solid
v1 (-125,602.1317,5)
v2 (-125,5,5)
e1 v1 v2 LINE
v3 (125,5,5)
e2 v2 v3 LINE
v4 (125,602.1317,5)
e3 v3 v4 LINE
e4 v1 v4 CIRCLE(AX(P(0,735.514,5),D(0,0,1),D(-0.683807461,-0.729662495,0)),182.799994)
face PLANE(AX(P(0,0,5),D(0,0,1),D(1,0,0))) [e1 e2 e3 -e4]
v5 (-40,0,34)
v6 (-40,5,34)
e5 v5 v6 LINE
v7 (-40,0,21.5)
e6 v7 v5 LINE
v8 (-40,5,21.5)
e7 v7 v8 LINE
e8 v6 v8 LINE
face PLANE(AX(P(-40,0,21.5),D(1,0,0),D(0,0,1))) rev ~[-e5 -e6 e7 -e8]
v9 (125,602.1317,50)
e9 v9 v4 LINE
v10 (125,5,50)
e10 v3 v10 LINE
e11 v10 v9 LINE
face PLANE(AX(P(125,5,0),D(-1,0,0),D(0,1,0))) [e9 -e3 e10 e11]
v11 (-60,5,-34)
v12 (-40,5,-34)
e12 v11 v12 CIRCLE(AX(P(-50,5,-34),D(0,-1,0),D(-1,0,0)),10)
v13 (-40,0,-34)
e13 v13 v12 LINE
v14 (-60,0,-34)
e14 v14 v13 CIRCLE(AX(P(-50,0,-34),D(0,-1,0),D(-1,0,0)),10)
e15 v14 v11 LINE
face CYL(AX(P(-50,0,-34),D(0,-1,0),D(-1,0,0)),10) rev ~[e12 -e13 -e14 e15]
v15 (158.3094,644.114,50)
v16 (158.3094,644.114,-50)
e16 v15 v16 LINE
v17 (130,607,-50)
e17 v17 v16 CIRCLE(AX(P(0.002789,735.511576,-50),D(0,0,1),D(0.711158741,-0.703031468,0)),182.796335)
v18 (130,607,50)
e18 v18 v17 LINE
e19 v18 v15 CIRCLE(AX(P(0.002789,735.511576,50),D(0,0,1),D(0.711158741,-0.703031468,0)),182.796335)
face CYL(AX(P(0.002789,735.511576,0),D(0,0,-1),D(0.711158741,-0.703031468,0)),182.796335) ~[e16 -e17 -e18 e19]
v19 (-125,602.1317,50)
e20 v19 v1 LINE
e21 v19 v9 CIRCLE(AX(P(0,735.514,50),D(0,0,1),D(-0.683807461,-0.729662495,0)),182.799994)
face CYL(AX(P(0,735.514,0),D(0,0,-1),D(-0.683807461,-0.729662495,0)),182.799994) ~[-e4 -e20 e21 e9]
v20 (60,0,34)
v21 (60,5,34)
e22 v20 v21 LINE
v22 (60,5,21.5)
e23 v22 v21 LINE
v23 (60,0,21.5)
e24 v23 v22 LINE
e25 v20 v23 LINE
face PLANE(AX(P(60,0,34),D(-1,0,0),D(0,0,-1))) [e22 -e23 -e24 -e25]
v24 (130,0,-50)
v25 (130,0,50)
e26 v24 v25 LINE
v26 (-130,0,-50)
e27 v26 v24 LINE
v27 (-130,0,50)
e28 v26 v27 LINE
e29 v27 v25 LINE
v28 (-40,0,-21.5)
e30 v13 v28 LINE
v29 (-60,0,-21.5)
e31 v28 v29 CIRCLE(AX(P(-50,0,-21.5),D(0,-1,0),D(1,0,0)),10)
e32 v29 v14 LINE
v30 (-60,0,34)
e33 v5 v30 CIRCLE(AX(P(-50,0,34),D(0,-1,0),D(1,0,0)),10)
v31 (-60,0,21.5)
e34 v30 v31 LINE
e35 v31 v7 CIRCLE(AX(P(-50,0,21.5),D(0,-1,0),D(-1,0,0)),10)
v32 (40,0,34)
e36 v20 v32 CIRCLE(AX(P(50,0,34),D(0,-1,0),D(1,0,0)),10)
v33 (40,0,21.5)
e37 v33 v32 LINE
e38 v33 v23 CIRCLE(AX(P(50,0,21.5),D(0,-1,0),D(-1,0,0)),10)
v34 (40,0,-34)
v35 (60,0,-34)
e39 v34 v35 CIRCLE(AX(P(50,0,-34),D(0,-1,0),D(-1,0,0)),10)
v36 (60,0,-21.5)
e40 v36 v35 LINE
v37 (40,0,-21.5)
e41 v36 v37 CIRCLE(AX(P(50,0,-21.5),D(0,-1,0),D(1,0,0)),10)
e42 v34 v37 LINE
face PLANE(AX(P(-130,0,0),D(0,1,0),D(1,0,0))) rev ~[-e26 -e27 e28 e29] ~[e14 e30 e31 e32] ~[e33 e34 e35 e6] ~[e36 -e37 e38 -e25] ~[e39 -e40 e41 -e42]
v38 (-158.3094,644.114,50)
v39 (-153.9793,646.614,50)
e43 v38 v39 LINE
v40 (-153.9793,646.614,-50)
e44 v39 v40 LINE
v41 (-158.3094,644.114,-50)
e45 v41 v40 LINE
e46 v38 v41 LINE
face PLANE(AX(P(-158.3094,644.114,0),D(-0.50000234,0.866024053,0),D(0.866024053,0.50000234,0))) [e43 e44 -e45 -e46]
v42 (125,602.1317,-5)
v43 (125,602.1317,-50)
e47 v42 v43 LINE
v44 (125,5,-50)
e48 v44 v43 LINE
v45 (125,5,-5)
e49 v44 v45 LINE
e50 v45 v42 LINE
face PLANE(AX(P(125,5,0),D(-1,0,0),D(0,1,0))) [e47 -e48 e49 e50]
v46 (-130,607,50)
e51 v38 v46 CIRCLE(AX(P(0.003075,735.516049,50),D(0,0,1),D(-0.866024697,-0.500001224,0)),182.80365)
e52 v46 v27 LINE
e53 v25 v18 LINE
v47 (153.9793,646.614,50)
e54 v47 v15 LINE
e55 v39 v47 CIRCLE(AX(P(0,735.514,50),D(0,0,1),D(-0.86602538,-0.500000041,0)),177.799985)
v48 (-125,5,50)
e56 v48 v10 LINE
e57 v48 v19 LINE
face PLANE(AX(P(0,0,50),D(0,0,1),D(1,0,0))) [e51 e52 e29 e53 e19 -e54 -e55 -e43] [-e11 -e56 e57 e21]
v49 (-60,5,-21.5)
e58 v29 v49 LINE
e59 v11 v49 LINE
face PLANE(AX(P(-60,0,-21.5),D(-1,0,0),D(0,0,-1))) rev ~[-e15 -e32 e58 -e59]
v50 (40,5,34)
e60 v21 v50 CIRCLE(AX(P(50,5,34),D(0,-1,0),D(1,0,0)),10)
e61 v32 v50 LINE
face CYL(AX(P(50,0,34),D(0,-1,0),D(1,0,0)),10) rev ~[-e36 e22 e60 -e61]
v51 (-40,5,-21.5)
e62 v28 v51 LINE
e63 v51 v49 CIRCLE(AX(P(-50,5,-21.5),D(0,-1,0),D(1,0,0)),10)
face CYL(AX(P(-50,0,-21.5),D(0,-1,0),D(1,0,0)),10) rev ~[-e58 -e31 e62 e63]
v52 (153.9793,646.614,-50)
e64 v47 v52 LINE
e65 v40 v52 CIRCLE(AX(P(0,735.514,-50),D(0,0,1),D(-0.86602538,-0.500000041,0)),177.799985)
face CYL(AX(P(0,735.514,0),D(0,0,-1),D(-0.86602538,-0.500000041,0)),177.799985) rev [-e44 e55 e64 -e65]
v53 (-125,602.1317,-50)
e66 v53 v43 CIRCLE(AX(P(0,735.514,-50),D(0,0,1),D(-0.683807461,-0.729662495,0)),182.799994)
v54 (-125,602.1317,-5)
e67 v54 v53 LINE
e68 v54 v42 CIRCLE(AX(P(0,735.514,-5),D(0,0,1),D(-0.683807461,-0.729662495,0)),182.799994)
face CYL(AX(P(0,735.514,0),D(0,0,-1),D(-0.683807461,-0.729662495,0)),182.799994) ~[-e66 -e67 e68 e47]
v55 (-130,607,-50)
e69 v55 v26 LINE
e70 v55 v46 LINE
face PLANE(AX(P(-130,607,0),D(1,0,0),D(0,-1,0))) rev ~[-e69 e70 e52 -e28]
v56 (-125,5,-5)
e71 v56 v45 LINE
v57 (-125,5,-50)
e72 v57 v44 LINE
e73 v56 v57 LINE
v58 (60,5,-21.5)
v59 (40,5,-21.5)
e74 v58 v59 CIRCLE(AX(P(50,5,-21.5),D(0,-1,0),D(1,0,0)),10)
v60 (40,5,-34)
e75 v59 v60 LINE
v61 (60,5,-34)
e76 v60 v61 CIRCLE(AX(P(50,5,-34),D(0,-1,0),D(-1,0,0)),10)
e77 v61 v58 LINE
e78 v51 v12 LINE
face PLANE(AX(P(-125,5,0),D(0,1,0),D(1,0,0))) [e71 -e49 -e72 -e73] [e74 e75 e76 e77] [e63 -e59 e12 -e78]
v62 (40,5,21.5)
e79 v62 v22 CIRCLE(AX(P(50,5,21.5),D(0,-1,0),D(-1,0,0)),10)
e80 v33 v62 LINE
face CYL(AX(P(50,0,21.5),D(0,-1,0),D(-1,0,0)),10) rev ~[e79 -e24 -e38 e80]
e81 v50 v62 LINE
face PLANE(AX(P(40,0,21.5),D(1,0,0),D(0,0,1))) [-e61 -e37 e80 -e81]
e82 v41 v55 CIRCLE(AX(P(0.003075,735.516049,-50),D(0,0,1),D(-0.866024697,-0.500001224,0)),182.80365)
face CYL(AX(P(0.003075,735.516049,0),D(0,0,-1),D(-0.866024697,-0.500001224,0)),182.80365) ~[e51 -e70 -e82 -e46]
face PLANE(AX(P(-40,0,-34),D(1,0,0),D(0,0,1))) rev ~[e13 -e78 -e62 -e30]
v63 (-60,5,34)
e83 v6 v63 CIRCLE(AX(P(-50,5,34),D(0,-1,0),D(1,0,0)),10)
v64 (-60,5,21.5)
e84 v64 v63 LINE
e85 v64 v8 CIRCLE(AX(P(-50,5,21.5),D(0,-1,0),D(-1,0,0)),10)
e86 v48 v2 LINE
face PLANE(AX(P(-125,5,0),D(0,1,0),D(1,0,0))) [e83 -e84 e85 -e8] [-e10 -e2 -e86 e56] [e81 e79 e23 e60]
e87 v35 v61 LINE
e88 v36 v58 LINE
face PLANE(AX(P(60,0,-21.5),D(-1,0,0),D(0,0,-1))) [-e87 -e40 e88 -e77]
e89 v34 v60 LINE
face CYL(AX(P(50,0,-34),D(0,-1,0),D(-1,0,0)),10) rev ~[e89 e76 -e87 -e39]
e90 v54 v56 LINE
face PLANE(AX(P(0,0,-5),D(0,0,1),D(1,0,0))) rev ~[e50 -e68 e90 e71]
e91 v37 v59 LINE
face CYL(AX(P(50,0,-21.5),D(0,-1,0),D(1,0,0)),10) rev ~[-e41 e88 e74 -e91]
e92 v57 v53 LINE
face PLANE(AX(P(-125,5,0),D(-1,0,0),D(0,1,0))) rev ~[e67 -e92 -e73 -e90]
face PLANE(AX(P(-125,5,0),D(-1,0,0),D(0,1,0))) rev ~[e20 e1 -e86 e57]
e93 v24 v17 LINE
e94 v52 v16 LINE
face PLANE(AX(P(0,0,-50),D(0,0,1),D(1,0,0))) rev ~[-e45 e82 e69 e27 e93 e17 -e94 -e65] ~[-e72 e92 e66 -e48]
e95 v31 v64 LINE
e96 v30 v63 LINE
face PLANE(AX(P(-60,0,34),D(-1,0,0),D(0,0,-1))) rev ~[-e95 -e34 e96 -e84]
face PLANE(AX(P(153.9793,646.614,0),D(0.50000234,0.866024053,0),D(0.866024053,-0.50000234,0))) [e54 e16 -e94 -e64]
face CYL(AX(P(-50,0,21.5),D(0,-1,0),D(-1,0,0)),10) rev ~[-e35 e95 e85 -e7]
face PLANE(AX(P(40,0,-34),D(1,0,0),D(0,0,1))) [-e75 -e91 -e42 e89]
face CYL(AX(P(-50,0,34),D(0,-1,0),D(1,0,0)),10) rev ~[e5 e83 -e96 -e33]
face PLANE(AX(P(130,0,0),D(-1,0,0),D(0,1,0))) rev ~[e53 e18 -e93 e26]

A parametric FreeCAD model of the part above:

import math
import FreeCAD as App
import Part
import Sketcher

V = App.Vector
Q = App.Units.Quantity

doc = App.newDocument("Part")
body = doc.addObject("PartDesign::Body", "Body")

sketch1 = body.newObject("Sketcher::SketchObject", "Sketch")
sketch1.AttachmentSupport = (doc.getObject("XY_Plane"), [""])
sketch1.MapMode = "FlatFace"
sketch1.addGeometry(Part.ArcOfCircle(Part.Circle(V(0, 735.5, 0), V(0, 0, 1), 182.8), math.radians(-150), math.radians(-135.33)), False)
sketch1.addGeometry(Part.LineSegment(V(-130, 607, 0), V(-130, 0, 0)), False)
sketch1.addGeometry(Part.LineSegment(V(-130, 0, 0), V(130, 0, 0)), False)
sketch1.addGeometry(Part.LineSegment(V(130, 0, 0), V(130, 607, 0)), False)
sketch1.addGeometry(Part.ArcOfCircle(Part.Circle(V(0, 735.5, 0), V(0, 0, 1), 182.8), math.radians(-44.67), math.radians(-30)), False)
sketch1.addGeometry(Part.LineSegment(V(158.3, 644.1, 0), V(154, 646.6, 0)), False)
sketch1.addGeometry(Part.ArcOfCircle(Part.Circle(V(0, 735.5, 0), V(0, 0, 1), 177.8), math.radians(-150), math.radians(-30)), False)
sketch1.addGeometry(Part.LineSegment(V(-154, 646.6, 0), V(-158.3, 644.1, 0)), False)
sketch1.addGeometry(Part.LineSegment(V(125, 602.1, 0), V(125, 5, 0)), False)
sketch1.addGeometry(Part.LineSegment(V(125, 5, 0), V(-125, 5, 0)), False)
sketch1.addGeometry(Part.LineSegment(V(-125, 5, 0), V(-125, 602.1, 0)), False)
sketch1.addGeometry(Part.ArcOfCircle(Part.Circle(V(0, 735.5, 0), V(0, 0, 1), 182.8), math.radians(-133), math.radians(-47)), False)
sketch1.addConstraint(Sketcher.Constraint("Coincident", 0, 2, 1, 1))
sketch1.addConstraint(Sketcher.Constraint("Coincident", 1, 2, 2, 1))
sketch1.addConstraint(Sketcher.Constraint("Coincident", 2, 2, 3, 1))
sketch1.addConstraint(Sketcher.Constraint("Coincident", 3, 2, 4, 1))
sketch1.addConstraint(Sketcher.Constraint("Coincident", 4, 2, 5, 1))
sketch1.addConstraint(Sketcher.Constraint("Coincident", 5, 2, 6, 2))
sketch1.addConstraint(Sketcher.Constraint("Coincident", 6, 1, 7, 1))
sketch1.addConstraint(Sketcher.Constraint("Coincident", 7, 2, 0, 1))
sketch1.addConstraint(Sketcher.Constraint("Coincident", 8, 2, 9, 1))
sketch1.addConstraint(Sketcher.Constraint("Coincident", 9, 2, 10, 1))
sketch1.addConstraint(Sketcher.Constraint("Coincident", 10, 2, 11, 1))
sketch1.addConstraint(Sketcher.Constraint("Coincident", 11, 2, 8, 1))
sketch1.addConstraint(Sketcher.Constraint("Vertical", 1))
sketch1.addConstraint(Sketcher.Constraint("Horizontal", 2))
sketch1.addConstraint(Sketcher.Constraint("Vertical", 3))
sketch1.addConstraint(Sketcher.Constraint("Vertical", 8))
sketch1.addConstraint(Sketcher.Constraint("Horizontal", 9))
sketch1.addConstraint(Sketcher.Constraint("Vertical", 10))
sketch1.addConstraint(Sketcher.Constraint("Coincident", 11, 3, 6, 3))
sketch1.addConstraint(Sketcher.Constraint("Symmetric", 1, 2, 2, 2, -1, 1))
sketch1.addConstraint(Sketcher.Constraint("Symmetric", 5, 2, 6, 1, -2))
sketch1.addConstraint(Sketcher.Constraint("Symmetric", 4, 2, 7, 2, -2))
sketch1.addConstraint(Sketcher.Constraint("Horizontal", 0, 2, 3, 2))
sketch1.addConstraint(Sketcher.Constraint("Horizontal", 10, 2, 11, 2))
sketch1.addConstraint(Sketcher.Constraint("Radius", 6, Q("177.8 mm")))
sketch1.addConstraint(Sketcher.Constraint("Radius", 11, Q("182.8 mm")))
sketch1.addConstraint(Sketcher.Constraint("DistanceX", 2, 1, 2, 2, Q("260 mm")))
sketch1.addConstraint(Sketcher.Constraint("DistanceY", 1, 2, 1, 1, Q("607 mm")))
sketch1.addConstraint(Sketcher.Constraint("Distance", 5, Q("5 mm")))
sketch1.addConstraint(Sketcher.Constraint("DistanceY", -1, 1, 8, 2, Q("5 mm")))
sketch1.addConstraint(Sketcher.Constraint("DistanceX", 8, 2, 2, 2, Q("5 mm")))
sketch1.addConstraint(Sketcher.Constraint("Angle", 5, Q("149.9998 deg")))
sketch1.addConstraint(Sketcher.Constraint("DistanceX", -1, 1, 4, 2, Q("158.3094 mm")))
sketch1.addConstraint(Sketcher.Constraint("Radius", 0, Q("182.8036 mm")))
sketch1.addConstraint(Sketcher.Constraint("Radius", 4, Q("182.7963 mm")))
sketch1.addConstraint(Sketcher.Constraint("DistanceY", 8, 2, 8, 1, Q("597.1317 mm")))
pad1 = body.newObject("PartDesign::Pad", "Pad")
pad1.Profile = sketch1
pad1.Length = 100
pad1.Midplane = True

sketch2 = body.newObject("Sketcher::SketchObject", "Sketch001")
sketch2.AttachmentSupport = (doc.getObject("XY_Plane"), [""])
sketch2.MapMode = "FlatFace"
sketch2.addGeometry(Part.ArcOfCircle(Part.Circle(V(0, 736, 0), V(0, 0, 1), 183), math.radians(-133), math.radians(-47)), False)
sketch2.addGeometry(Part.LineSegment(V(-125, 602, 0), V(-125, 5, 0)), False)
sketch2.addGeometry(Part.LineSegment(V(-125, 5, 0), V(125, 5, 0)), False)
sketch2.addGeometry(Part.LineSegment(V(125, 5, 0), V(125, 602, 0)), False)
sketch2.addConstraint(Sketcher.Constraint("Coincident", 0, 1, 1, 1))
sketch2.addConstraint(Sketcher.Constraint("Coincident", 1, 2, 2, 1))
sketch2.addConstraint(Sketcher.Constraint("Coincident", 2, 2, 3, 1))
sketch2.addConstraint(Sketcher.Constraint("Coincident", 3, 2, 0, 2))
sketch2.addConstraint(Sketcher.Constraint("Vertical", 1))
sketch2.addConstraint(Sketcher.Constraint("Horizontal", 2))
sketch2.addConstraint(Sketcher.Constraint("Vertical", 3))
sketch2.addConstraint(Sketcher.Constraint("Symmetric", 0, 1, 3, 2, -2))
sketch2.addConstraint(Sketcher.Constraint("Radius", 0, Q("182.8 mm")))
sketch2.addConstraint(Sketcher.Constraint("DistanceX", 2, 1, 2, 2, Q("250 mm")))
sketch2.addConstraint(Sketcher.Constraint("DistanceY", -1, 1, 1, 2, Q("5 mm")))
sketch2.addConstraint(Sketcher.Constraint("DistanceY", 1, 2, 1, 1, Q("597.1317 mm")))
pad2 = body.newObject("PartDesign::Pad", "Pad001")
pad2.Profile = sketch2
pad2.Length = 10
pad2.Midplane = True

sketch3 = body.newObject("Sketcher::SketchObject", "Sketch002")
sketch3.AttachmentSupport = (doc.getObject("XZ_Plane"), [""])
sketch3.MapMode = "FlatFace"
sketch3.addGeometry(Part.ArcOfCircle(Part.Circle(V(-50, 34, 0), V(0, 0, 1), 10), math.radians(0), math.radians(180)), False)
sketch3.addGeometry(Part.LineSegment(V(-60, 34, 0), V(-60, 22, 0)), False)
sketch3.addGeometry(Part.ArcOfCircle(Part.Circle(V(-50, 22, 0), V(0, 0, 1), 10), math.radians(180), math.radians(360)), False)
sketch3.addGeometry(Part.LineSegment(V(-40, 22, 0), V(-40, 34, 0)), False)
sketch3.addGeometry(Part.ArcOfCircle(Part.Circle(V(-50, -22, 0), V(0, 0, 1), 10), math.radians(0), math.radians(180)), False)
sketch3.addGeometry(Part.LineSegment(V(-60, -22, 0), V(-60, -34, 0)), False)
sketch3.addGeometry(Part.ArcOfCircle(Part.Circle(V(-50, -34, 0), V(0, 0, 1), 10), math.radians(180), math.radians(360)), False)
sketch3.addGeometry(Part.LineSegment(V(-40, -34, 0), V(-40, -22, 0)), False)
sketch3.addGeometry(Part.LineSegment(V(60, 22, 0), V(60, 34, 0)), False)
sketch3.addGeometry(Part.ArcOfCircle(Part.Circle(V(50, 34, 0), V(0, 0, 1), 10), math.radians(0), math.radians(180)), False)
sketch3.addGeometry(Part.LineSegment(V(40, 34, 0), V(40, 22, 0)), False)
sketch3.addGeometry(Part.ArcOfCircle(Part.Circle(V(50, 22, 0), V(0, 0, 1), 10), math.radians(180), math.radians(360)), False)
sketch3.addGeometry(Part.LineSegment(V(60, -34, 0), V(60, -22, 0)), False)
sketch3.addGeometry(Part.ArcOfCircle(Part.Circle(V(50, -22, 0), V(0, 0, 1), 10), math.radians(0), math.radians(180)), False)
sketch3.addGeometry(Part.LineSegment(V(40, -22, 0), V(40, -34, 0)), False)
sketch3.addGeometry(Part.ArcOfCircle(Part.Circle(V(50, -34, 0), V(0, 0, 1), 10), math.radians(180), math.radians(360)), False)
sketch3.addConstraint(Sketcher.Constraint("Tangent", 0, 2, 1, 1))
sketch3.addConstraint(Sketcher.Constraint("Tangent", 1, 2, 2, 1))
sketch3.addConstraint(Sketcher.Constraint("Tangent", 2, 2, 3, 1))
sketch3.addConstraint(Sketcher.Constraint("Tangent", 3, 2, 0, 1))
sketch3.addConstraint(Sketcher.Constraint("Tangent", 4, 2, 5, 1))
sketch3.addConstraint(Sketcher.Constraint("Tangent", 5, 2, 6, 1))
sketch3.addConstraint(Sketcher.Constraint("Tangent", 6, 2, 7, 1))
sketch3.addConstraint(Sketcher.Constraint("Tangent", 7, 2, 4, 1))
sketch3.addConstraint(Sketcher.Constraint("Tangent", 8, 2, 9, 1))
sketch3.addConstraint(Sketcher.Constraint("Tangent", 9, 2, 10, 1))
sketch3.addConstraint(Sketcher.Constraint("Tangent", 10, 2, 11, 1))
sketch3.addConstraint(Sketcher.Constraint("Tangent", 11, 2, 8, 1))
sketch3.addConstraint(Sketcher.Constraint("Tangent", 12, 2, 13, 1))
sketch3.addConstraint(Sketcher.Constraint("Tangent", 13, 2, 14, 1))
sketch3.addConstraint(Sketcher.Constraint("Tangent", 14, 2, 15, 1))
sketch3.addConstraint(Sketcher.Constraint("Tangent", 15, 2, 12, 1))
sketch3.addConstraint(Sketcher.Constraint("Vertical", 1))
sketch3.addConstraint(Sketcher.Constraint("Vertical", 3))
sketch3.addConstraint(Sketcher.Constraint("Vertical", 5))
sketch3.addConstraint(Sketcher.Constraint("Vertical", 7))
sketch3.addConstraint(Sketcher.Constraint("Vertical", 8))
sketch3.addConstraint(Sketcher.Constraint("Vertical", 10))
sketch3.addConstraint(Sketcher.Constraint("Vertical", 12))
sketch3.addConstraint(Sketcher.Constraint("Vertical", 14))
sketch3.addConstraint(Sketcher.Constraint("Equal", 2, 4))
sketch3.addConstraint(Sketcher.Constraint("Equal", 6, 9))
sketch3.addConstraint(Sketcher.Constraint("Equal", 11, 13))
sketch3.addConstraint(Sketcher.Constraint("Symmetric", 6, 3, 9, 3, -1, 1))
sketch3.addConstraint(Sketcher.Constraint("Symmetric", 2, 3, 13, 3, -1, 1))
sketch3.addConstraint(Sketcher.Constraint("Symmetric", 0, 3, 9, 3, -2))
sketch3.addConstraint(Sketcher.Constraint("Horizontal", 2, 3, 11, 3))
sketch3.addConstraint(Sketcher.Constraint("Horizontal", 4, 3, 13, 3))
sketch3.addConstraint(Sketcher.Constraint("Horizontal", 6, 3, 15, 3))
sketch3.addConstraint(Sketcher.Constraint("Radius", 0, Q("10 mm")))
sketch3.addConstraint(Sketcher.Constraint("DistanceY", 1, 2, 1, 1, Q("12.5 mm")))
sketch3.addConstraint(Sketcher.Constraint("DistanceY", 4, 3, 2, 3, Q("43 mm")))
sketch3.addConstraint(Sketcher.Constraint("DistanceX", 0, 3, 9, 3, Q("100 mm")))
pocket1 = body.newObject("PartDesign::Pocket", "Pocket")
pocket1.Profile = sketch3
pocket1.Length = 10

doc.recompute()
